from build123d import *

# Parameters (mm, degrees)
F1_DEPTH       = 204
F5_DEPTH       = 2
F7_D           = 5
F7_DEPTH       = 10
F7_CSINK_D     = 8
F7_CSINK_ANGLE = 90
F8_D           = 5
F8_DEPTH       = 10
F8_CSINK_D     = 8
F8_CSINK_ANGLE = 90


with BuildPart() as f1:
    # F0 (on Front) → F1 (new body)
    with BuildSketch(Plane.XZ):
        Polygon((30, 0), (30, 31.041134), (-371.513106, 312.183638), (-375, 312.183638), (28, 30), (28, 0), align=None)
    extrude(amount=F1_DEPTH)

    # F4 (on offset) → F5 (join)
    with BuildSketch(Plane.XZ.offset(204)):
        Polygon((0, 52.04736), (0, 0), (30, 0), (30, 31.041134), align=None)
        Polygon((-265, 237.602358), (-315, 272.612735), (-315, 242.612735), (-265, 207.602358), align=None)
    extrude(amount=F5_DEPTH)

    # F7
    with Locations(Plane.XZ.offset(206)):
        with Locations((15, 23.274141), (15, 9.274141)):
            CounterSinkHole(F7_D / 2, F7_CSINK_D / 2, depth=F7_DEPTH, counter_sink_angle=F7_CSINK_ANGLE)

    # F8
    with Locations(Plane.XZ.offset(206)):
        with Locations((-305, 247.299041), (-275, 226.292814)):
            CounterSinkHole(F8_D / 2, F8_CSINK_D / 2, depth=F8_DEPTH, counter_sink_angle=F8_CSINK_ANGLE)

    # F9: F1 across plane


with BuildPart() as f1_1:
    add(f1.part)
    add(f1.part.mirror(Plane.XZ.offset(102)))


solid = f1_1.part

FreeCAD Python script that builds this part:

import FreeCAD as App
import Part
import Sketcher
Q = App.Units.Quantity

doc = App.newDocument("Part")
body = doc.addObject("PartDesign::Body", "Body")

# Sketch on XZ plane
sketch1 = doc.addObject("Sketcher::SketchObject", "Sketch")
body.addObject(sketch1)
sketch1.AttachmentSupport = (doc.XZ_Plane, [""])
sketch1.MapMode = "FlatFace"
sketch1.addGeometry([
    Part.LineSegment(App.Vector(30, 0, 0), App.Vector(30, 31, 0)),  # 0
    Part.LineSegment(App.Vector(30, 31, 0), App.Vector(-371.5, 312.2, 0)),  # 1
    Part.LineSegment(App.Vector(-371.5, 312.2, 0), App.Vector(-375, 312.2, 0)),  # 2
    Part.LineSegment(App.Vector(-375, 312.2, 0), App.Vector(28, 30, 0)),  # 3
    Part.LineSegment(App.Vector(28, 30, 0), App.Vector(28, 0, 0)),  # 4
    Part.LineSegment(App.Vector(28, 0, 0), App.Vector(30, 0, 0)),  # 5
], False)
sketch1.addConstraint([
    Sketcher.Constraint("Coincident", 0, 2, 1, 1),
    Sketcher.Constraint("Coincident", 1, 2, 2, 1),
    Sketcher.Constraint("Coincident", 2, 2, 3, 1),
    Sketcher.Constraint("Coincident", 3, 2, 4, 1),
    Sketcher.Constraint("Coincident", 4, 2, 5, 1),
    Sketcher.Constraint("Coincident", 5, 2, 0, 1),
    Sketcher.Constraint("Vertical", 0),
    Sketcher.Constraint("Horizontal", 2),
    Sketcher.Constraint("Vertical", 4),
    Sketcher.Constraint("Horizontal", 5),
    Sketcher.Constraint("PointOnObject", 4, 2, -1),
    Sketcher.Constraint("Parallel", 1, 3),
    Sketcher.Constraint("DistanceX", 5, 1, 5, 2, Q("2 mm")),
    Sketcher.Constraint("DistanceY", 4, 2, 4, 1, Q("30 mm")),
    Sketcher.Constraint("Angle", 1, Q("145 deg")),
    Sketcher.Constraint("DistanceX", -1, 1, 0, 2, Q("30 mm")),
    Sketcher.Constraint("DistanceX", 2, 2, -1, 1, Q("375 mm")),
    Sketcher.Constraint("DistanceX", 2, 2, 2, 1, Q("3.486894 mm")),
])
pad1 = doc.addObject("PartDesign::Pad", "Pad")
body.addObject(pad1)
pad1.Profile = sketch1
pad1.Length = 204

# Sketch on XZ plane
sketch2 = doc.addObject("Sketcher::SketchObject", "Sketch001")
body.addObject(sketch2)
sketch2.AttachmentSupport = (doc.XZ_Plane, [""])
sketch2.MapMode = "FlatFace"
sketch2.AttachmentOffset = App.Placement(App.Vector(0, 0, 204), App.Rotation())
sketch2.addGeometry([
    Part.LineSegment(App.Vector(0, 52, 0), App.Vector(0, 0, 0)),  # 0
    Part.LineSegment(App.Vector(0, 0, 0), App.Vector(30, 0, 0)),  # 1
    Part.LineSegment(App.Vector(30, 0, 0), App.Vector(30, 31, 0)),  # 2
    Part.LineSegment(App.Vector(30, 31, 0), App.Vector(0, 52, 0)),  # 3
    Part.LineSegment(App.Vector(-265, 238, 0), App.Vector(-315, 273, 0)),  # 4
    Part.LineSegment(App.Vector(-315, 273, 0), App.Vector(-315, 243, 0)),  # 5
    Part.LineSegment(App.Vector(-315, 243, 0), App.Vector(-265, 208, 0)),  # 6
    Part.LineSegment(App.Vector(-265, 208, 0), App.Vector(-265, 238, 0)),  # 7
], False)
sketch2.addConstraint([
    Sketcher.Constraint("Coincident", 0, 2, 1, 1),
    Sketcher.Constraint("Coincident", 1, 2, 2, 1),
    Sketcher.Constraint("Coincident", 2, 2, 3, 1),
    Sketcher.Constraint("Coincident", 3, 2, 0, 1),
    Sketcher.Constraint("Coincident", 4, 2, 5, 1),
    Sketcher.Constraint("Coincident", 5, 2, 6, 1),
    Sketcher.Constraint("Coincident", 6, 2, 7, 1),
    Sketcher.Constraint("Coincident", 7, 2, 4, 1),
    Sketcher.Constraint("Vertical", 0),
    Sketcher.Constraint("Horizontal", 1),
    Sketcher.Constraint("Vertical", 2),
    Sketcher.Constraint("Vertical", 5),
    Sketcher.Constraint("Vertical", 7),
    Sketcher.Constraint("Coincident", 0, 2, -1, 1),
    Sketcher.Constraint("Parallel", 3, 4),
    Sketcher.Constraint("Parallel", 4, 6),
    Sketcher.Constraint("Equal", 1, 5),
    Sketcher.Constraint("DistanceX", 1, 1, 1, 2, Q("30 mm")),
    Sketcher.Constraint("Angle", 3, Q("145 deg")),
    Sketcher.Constraint("DistanceX", 4, 2, -1, 1, Q("315 mm")),
    Sketcher.Constraint("DistanceX", 6, 2, -1, 1, Q("265 mm")),
    Sketcher.Constraint("DistanceY", 3, 2, 6, 2, Q("155.554998 mm")),
    Sketcher.Constraint("DistanceY", 0, 2, 0, 1, Q("52.04736 mm")),
])
pad2 = doc.addObject("PartDesign::Pad", "Pad001")
body.addObject(pad2)
pad2.Profile = sketch2
pad2.Length = 2

# Sketch on XZ plane
sketch3 = doc.addObject("Sketcher::SketchObject", "Sketch002")
body.addObject(sketch3)
sketch3.AttachmentSupport = (doc.XZ_Plane, [""])
sketch3.MapMode = "FlatFace"
sketch3.AttachmentOffset = App.Placement(App.Vector(0, 0, 206), App.Rotation())
sketch3.addGeometry([
    Part.Circle(App.Vector(15, 23.3, 0), App.Vector(0, 0, 1), 2.5),
    Part.Circle(App.Vector(15, 9.3, 0), App.Vector(0, 0, 1), 2.5),
], False)
sketch3.addConstraint([
    Sketcher.Constraint("Equal", 0, 1),
    Sketcher.Constraint("Vertical", 0, 3, 1, 3),
    Sketcher.Constraint("Diameter", 0, Q("5 mm")),
    Sketcher.Constraint("DistanceX", -1, 1, 0, 3, Q("15 mm")),
    Sketcher.Constraint("DistanceY", 1, 3, 0, 3, Q("14 mm")),
    Sketcher.Constraint("DistanceY", -1, 1, 0, 3, Q("23.274141 mm")),
])
doc.recompute()
hole = doc.addObject("PartDesign::Hole", "Hole")
body.addObject(hole)
hole.Profile = sketch3
hole.ThreadType = "None"
hole.Diameter = 5
hole.DepthType = "Dimension"
hole.Depth = 10
hole.DrillPoint = "Flat"
hole.HoleCutType = "Countersink"
hole.HoleCutDiameter = 8
hole.HoleCutCountersinkAngle = 90

# Sketch on XZ plane
sketch4 = doc.addObject("Sketcher::SketchObject", "Sketch003")
body.addObject(sketch4)
sketch4.AttachmentSupport = (doc.XZ_Plane, [""])
sketch4.MapMode = "FlatFace"
sketch4.AttachmentOffset = App.Placement(App.Vector(0, 0, 206), App.Rotation())
sketch4.addGeometry([
    Part.Circle(App.Vector(-305, 247.3, 0), App.Vector(0, 0, 1), 2.5),
    Part.Circle(App.Vector(-275, 226.3, 0), App.Vector(0, 0, 1), 2.5),
], False)
sketch4.addConstraint([
    Sketcher.Constraint("Equal", 0, 1),
    Sketcher.Constraint("Diameter", 0, Q("5 mm")),
    Sketcher.Constraint("DistanceX", 0, 3, -1, 1, Q("305 mm")),
    Sketcher.Constraint("DistanceX", 1, 3, -1, 1, Q("275 mm")),
    Sketcher.Constraint("DistanceY", -1, 1, 0, 3, Q("247.299041 mm")),
    Sketcher.Constraint("DistanceY", -1, 1, 1, 3, Q("226.292814 mm")),
])
doc.recompute()
hole2 = doc.addObject("PartDesign::Hole", "Hole001")
body.addObject(hole2)
hole2.Profile = sketch4
hole2.ThreadType = "None"
hole2.Diameter = 5
hole2.DepthType = "Dimension"
hole2.Depth = 10
hole2.DrillPoint = "Flat"
hole2.HoleCutType = "Countersink"
hole2.HoleCutDiameter = 8
hole2.HoleCutCountersinkAngle = 90
body2 = doc.addObject("PartDesign::Body", "Body001")
doc.recompute()

body2.BaseFeature = body
doc.recompute()

mirroring = doc.addObject("Part::Mirroring", "Mirroring")
mirroring.Source = body
mirroring.Base = App.Vector(0, -102, 0)
mirroring.Normal = App.Vector(0, -1, 0)
body3 = doc.addObject("PartDesign::Body", "Body002")
body3.BaseFeature = mirroring
boolean = doc.addObject("PartDesign::Boolean", "Boolean")
body2.addObject(boolean)
boolean.Type = "Fuse"
boolean.addObjects([body3])
doc.recompute()
mirroring.Visibility = False

doc.recompute()
